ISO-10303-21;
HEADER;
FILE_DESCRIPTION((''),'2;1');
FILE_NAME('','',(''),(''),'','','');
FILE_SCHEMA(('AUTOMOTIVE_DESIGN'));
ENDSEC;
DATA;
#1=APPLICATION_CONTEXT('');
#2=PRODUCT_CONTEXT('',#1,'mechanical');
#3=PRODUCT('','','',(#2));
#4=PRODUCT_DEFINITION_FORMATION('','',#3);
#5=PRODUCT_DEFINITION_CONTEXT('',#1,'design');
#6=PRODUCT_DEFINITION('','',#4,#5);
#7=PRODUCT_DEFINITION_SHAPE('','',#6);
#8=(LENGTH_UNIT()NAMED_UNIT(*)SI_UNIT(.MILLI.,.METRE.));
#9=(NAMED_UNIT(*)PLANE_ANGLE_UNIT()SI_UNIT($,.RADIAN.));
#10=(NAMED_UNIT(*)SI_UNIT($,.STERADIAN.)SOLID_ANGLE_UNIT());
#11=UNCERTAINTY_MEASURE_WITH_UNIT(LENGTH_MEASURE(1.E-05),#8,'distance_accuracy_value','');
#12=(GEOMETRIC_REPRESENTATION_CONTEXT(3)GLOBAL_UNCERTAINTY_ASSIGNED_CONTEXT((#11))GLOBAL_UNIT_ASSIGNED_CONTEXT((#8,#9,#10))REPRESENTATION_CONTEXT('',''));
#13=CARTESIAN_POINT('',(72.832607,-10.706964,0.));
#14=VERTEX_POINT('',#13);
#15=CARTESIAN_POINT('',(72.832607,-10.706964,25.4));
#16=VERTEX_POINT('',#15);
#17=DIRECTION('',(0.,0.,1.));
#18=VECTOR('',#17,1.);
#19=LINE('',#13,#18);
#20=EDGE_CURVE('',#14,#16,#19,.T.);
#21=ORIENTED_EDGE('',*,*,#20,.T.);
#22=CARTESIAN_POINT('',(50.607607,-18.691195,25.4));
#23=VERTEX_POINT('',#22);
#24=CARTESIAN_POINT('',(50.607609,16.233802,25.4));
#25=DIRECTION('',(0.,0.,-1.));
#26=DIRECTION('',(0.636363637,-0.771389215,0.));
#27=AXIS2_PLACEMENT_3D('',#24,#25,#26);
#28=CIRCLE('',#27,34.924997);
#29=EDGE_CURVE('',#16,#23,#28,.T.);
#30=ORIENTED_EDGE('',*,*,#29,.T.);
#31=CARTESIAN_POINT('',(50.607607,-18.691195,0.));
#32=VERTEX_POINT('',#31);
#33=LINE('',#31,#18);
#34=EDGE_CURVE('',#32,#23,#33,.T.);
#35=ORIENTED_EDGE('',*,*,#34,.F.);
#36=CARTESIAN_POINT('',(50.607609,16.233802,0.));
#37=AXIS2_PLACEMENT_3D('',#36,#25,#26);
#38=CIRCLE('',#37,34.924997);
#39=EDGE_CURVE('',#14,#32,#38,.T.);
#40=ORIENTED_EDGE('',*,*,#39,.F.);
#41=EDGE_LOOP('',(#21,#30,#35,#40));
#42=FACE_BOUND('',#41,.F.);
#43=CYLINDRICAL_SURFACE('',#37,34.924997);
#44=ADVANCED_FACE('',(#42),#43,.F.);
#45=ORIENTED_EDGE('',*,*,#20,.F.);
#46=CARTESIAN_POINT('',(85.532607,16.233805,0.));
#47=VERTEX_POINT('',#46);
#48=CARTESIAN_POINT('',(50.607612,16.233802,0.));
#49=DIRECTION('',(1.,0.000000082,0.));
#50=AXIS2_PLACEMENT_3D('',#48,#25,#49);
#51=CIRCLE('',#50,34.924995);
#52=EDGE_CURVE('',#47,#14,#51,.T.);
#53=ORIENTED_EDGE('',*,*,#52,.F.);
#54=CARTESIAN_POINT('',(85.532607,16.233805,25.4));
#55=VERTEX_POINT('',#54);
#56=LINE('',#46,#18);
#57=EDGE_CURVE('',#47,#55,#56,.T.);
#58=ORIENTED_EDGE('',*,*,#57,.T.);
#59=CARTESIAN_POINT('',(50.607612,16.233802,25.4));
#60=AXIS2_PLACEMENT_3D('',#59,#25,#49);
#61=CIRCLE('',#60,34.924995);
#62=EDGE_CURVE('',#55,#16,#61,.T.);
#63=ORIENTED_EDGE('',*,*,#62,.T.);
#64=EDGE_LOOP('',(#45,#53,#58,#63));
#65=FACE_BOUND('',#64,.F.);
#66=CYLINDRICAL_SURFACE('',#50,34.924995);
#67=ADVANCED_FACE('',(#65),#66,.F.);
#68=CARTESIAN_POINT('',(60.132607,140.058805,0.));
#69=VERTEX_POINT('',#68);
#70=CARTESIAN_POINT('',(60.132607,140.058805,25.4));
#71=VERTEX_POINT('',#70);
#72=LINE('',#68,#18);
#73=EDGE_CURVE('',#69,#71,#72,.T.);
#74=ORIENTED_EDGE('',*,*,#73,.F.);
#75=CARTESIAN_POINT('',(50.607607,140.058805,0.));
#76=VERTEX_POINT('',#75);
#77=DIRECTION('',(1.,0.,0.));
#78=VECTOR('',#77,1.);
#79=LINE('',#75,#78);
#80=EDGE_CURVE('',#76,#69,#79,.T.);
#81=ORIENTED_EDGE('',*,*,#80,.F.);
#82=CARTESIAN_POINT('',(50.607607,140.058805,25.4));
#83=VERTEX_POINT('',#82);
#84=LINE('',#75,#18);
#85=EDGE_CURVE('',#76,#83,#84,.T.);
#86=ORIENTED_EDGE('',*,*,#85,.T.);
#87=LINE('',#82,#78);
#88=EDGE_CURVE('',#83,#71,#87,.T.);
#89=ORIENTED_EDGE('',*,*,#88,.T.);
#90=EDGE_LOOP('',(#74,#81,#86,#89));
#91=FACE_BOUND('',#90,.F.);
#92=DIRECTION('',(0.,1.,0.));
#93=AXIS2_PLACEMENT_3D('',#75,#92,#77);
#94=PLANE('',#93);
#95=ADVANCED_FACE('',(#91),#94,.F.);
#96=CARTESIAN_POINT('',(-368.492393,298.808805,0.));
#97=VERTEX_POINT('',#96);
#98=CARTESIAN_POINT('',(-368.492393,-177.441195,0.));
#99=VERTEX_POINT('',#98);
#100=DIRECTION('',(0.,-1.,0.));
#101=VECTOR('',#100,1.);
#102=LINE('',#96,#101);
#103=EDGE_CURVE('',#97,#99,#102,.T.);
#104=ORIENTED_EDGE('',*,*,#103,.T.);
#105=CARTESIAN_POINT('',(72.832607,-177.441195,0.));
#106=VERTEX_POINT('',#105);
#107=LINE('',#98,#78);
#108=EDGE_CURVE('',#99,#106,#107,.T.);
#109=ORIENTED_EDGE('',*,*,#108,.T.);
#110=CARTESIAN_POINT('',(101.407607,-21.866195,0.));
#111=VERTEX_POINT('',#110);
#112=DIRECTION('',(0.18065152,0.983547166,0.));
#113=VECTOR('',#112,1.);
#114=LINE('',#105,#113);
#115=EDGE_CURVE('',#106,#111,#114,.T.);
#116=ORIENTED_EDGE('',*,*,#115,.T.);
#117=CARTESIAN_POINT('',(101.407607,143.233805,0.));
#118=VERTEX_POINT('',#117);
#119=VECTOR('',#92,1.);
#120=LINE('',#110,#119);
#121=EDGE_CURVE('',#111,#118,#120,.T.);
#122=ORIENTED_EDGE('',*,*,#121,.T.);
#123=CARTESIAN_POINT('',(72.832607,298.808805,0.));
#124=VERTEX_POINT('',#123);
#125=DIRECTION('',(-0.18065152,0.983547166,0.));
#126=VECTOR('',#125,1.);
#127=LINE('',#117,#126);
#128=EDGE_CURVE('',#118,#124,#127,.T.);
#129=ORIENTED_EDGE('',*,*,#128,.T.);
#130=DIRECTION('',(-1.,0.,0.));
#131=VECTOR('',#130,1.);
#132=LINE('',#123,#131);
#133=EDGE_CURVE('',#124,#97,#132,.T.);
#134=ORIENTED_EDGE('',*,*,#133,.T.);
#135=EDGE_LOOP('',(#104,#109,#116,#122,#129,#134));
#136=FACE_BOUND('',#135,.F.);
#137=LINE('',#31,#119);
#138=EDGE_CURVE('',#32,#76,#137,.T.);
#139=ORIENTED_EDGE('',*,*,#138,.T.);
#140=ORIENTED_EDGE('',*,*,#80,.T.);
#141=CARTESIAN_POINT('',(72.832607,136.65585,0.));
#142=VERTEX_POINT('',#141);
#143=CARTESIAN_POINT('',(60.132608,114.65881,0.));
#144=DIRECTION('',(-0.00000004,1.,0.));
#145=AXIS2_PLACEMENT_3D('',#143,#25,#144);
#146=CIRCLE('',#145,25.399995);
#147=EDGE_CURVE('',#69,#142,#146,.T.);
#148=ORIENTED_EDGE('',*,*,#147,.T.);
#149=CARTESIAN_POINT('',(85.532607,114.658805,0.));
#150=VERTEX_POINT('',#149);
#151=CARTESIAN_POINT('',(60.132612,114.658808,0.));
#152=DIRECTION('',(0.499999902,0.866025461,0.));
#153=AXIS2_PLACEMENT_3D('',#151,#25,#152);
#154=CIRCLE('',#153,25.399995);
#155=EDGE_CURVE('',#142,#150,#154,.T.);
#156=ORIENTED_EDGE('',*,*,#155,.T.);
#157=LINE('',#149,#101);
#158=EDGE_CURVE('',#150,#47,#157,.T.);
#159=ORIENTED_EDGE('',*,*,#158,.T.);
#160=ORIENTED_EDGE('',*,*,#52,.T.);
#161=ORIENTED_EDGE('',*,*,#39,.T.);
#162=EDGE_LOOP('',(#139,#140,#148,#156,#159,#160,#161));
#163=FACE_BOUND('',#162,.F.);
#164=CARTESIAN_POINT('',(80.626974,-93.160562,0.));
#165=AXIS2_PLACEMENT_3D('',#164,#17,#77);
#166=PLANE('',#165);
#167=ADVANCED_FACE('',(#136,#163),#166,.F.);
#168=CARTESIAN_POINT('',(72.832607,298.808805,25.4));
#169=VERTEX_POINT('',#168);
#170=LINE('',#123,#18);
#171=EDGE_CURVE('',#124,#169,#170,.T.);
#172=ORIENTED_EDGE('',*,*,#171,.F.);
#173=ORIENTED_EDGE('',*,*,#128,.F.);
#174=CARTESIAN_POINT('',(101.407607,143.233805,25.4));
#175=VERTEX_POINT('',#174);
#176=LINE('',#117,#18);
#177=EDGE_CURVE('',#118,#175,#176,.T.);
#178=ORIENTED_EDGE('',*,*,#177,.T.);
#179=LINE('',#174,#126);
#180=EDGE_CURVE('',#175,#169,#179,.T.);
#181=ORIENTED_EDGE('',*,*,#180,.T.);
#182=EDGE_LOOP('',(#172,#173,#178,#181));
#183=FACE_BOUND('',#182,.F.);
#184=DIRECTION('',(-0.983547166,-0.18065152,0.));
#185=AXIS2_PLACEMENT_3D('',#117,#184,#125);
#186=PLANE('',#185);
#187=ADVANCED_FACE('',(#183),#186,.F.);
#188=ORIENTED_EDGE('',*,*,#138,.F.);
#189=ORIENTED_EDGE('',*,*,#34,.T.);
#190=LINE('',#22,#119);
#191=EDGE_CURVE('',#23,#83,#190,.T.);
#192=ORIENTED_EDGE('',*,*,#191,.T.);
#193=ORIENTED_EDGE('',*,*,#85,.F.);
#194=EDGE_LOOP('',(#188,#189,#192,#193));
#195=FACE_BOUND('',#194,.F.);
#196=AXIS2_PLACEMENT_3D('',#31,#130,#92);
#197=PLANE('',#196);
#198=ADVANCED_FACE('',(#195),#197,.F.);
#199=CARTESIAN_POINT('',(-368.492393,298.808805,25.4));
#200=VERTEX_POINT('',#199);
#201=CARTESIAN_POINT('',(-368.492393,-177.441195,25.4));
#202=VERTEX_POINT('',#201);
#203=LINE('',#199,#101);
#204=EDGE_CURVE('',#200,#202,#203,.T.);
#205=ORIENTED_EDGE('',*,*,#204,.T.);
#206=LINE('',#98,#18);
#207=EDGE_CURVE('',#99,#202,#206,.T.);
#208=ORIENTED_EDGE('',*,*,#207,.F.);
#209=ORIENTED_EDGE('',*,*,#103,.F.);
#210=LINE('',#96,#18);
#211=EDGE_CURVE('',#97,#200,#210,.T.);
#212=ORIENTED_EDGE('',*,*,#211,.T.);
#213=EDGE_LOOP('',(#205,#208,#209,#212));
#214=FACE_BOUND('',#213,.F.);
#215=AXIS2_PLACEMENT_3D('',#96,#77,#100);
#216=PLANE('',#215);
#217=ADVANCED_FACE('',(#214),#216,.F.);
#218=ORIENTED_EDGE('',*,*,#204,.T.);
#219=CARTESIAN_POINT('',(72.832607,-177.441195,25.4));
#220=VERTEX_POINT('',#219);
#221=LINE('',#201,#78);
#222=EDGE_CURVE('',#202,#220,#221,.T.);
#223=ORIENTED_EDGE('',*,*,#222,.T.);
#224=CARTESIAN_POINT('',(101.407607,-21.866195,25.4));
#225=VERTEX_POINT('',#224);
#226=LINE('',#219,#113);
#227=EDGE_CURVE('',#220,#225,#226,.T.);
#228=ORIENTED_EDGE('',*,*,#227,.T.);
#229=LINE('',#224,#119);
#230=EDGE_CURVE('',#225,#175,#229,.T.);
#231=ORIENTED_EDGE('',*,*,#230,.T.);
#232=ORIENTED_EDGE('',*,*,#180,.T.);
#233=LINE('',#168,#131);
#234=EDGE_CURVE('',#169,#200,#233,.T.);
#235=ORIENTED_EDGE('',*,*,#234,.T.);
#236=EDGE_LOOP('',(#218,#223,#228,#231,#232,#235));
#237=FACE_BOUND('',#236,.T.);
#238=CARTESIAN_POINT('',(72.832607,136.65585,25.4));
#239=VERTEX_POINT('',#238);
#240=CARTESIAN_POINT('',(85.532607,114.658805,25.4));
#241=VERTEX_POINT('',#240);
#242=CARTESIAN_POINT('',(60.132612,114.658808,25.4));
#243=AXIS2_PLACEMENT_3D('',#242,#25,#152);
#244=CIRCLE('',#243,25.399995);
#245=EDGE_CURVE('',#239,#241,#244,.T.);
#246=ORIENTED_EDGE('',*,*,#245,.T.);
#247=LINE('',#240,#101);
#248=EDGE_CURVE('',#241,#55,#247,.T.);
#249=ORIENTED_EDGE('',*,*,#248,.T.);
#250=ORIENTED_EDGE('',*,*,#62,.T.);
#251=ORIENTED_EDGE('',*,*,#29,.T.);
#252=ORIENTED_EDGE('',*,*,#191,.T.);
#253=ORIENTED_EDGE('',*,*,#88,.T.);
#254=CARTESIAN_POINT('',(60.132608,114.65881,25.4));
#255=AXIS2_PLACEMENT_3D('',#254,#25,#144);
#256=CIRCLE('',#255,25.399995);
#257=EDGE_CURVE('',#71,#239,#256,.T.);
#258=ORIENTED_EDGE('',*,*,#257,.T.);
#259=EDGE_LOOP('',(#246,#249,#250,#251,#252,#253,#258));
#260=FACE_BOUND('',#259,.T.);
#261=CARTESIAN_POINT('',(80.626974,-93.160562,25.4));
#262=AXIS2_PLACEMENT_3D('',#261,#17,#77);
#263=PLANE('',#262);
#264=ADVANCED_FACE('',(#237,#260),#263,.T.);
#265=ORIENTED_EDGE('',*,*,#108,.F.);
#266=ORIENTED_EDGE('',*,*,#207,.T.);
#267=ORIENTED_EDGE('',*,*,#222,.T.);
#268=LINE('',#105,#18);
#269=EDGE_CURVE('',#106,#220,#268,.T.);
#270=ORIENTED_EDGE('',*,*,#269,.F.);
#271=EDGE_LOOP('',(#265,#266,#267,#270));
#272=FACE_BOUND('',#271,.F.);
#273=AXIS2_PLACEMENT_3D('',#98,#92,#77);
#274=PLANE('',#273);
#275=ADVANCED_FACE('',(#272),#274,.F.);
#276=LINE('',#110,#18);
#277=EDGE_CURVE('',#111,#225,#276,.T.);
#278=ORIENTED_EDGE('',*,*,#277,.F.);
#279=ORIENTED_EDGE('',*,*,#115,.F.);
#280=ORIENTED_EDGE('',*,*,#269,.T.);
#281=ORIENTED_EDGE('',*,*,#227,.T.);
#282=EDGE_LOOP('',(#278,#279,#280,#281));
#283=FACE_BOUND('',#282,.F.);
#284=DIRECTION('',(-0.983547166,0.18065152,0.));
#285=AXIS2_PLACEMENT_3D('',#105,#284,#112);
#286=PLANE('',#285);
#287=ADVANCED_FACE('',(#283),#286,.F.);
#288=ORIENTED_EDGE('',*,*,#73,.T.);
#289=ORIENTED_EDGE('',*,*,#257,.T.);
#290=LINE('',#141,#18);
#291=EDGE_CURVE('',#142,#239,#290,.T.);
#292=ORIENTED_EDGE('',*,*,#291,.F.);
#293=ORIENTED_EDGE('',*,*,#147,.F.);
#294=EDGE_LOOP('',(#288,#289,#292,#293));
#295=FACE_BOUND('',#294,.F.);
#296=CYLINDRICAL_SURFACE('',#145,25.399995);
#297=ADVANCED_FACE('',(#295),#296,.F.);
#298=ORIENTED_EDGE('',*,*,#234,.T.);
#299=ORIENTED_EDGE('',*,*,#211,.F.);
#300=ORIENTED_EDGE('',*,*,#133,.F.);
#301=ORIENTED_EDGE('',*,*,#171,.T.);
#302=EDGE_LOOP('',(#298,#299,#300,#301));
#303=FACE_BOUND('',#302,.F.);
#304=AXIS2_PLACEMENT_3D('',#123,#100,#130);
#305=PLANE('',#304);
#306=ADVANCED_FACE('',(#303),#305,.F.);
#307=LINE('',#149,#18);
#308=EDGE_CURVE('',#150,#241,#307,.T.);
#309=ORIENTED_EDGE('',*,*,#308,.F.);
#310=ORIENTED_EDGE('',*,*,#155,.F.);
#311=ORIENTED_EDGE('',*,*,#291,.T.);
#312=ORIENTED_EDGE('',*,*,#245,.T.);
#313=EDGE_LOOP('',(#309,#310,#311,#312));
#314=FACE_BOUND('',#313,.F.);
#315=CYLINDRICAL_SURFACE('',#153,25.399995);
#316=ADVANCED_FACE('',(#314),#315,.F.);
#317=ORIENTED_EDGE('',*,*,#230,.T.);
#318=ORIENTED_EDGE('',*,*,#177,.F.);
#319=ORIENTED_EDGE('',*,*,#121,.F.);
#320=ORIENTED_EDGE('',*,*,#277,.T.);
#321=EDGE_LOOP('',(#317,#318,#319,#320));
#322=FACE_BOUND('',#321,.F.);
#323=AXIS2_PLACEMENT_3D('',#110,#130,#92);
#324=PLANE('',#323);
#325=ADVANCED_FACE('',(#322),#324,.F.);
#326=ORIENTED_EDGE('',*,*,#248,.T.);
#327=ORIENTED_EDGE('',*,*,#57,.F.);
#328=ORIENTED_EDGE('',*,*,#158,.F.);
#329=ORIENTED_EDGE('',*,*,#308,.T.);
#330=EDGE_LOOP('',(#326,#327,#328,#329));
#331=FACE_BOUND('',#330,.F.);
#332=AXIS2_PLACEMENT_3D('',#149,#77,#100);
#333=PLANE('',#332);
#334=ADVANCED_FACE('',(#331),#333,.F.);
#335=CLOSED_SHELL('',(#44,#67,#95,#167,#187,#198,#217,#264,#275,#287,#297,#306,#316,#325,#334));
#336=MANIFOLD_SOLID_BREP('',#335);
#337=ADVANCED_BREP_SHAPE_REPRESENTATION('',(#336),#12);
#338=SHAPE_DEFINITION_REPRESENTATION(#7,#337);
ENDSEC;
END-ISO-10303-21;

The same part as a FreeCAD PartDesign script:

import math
import FreeCAD as App
import Part
import Sketcher
Q = App.Units.Quantity


def add_polygon(sketch, points):
    """Adds a closed chain of lines whose ends are joined by coincident constraints."""
    first, n = sketch.GeometryCount, len(points)
    for a, b in zip(points, points[1:] + points[:1]):
        sketch.addGeometry(Part.LineSegment(App.Vector(*a, 0), App.Vector(*b, 0)), False)
    for i in range(n):
        sketch.addConstraint(Sketcher.Constraint("Coincident", first + i, 2, first + (i + 1) % n, 1))

doc = App.newDocument("Part")
params = doc.addObject("Spreadsheet::Sheet", "Params")
for row, (alias, value) in enumerate([
    ("sketch1_radius", "0.9999998 in"),
    ("sketch1_height", "6.5 in"),
    ("sketch1_radius2", "1.3749999 in"),
    ("sketch1_height2", "18.75 in"),
    ("sketch1_height3", "6.25 in"),
    ("pad1_length", "1 in"),
], start=1):
    params.set(f"A{row}", alias)
    params.set(f"B{row}", "=" + value)
    params.setAlias(f"B{row}", alias)

body = doc.addObject("PartDesign::Body", "Body")

# Sketch on XY plane
sketch1 = body.newObject("Sketcher::SketchObject", "Sketch")
sketch1.AttachmentSupport = (doc.getObject("XY_Plane"), [""])
sketch1.MapMode = "FlatFace"
add_polygon(sketch1, [(72.832607, -177.441195), (101.407607, -21.866195), (101.407607, 143.233805), (72.832607, 298.808805), (-368.492393, 298.808805), (-368.492393, -177.441195)])  # lines 0-5
sketch1.addGeometry(Part.ArcOfCircle(Part.Circle(App.Vector(50.607609, 16.233802, 0), App.Vector(0, 0, 1), 34.924997), math.radians(-90.000003), math.radians(-50.478804)), False)  # 6
sketch1.addGeometry(Part.LineSegment(App.Vector(50.607607, -18.691195, 0), App.Vector(50.607607, 140.058805, 0)), False)  # 7
sketch1.addGeometry(Part.LineSegment(App.Vector(50.607607, 140.058805, 0), App.Vector(60.132607, 140.058805, 0)), False)  # 8
sketch1.addGeometry(Part.ArcOfCircle(Part.Circle(App.Vector(60.132608, 114.65881, 0), App.Vector(0, 0, 1), 25.399995), math.radians(59.999996), math.radians(90.000002)), False)  # 9
sketch1.addGeometry(Part.ArcOfCircle(Part.Circle(App.Vector(60.132612, 114.658808, 0), App.Vector(0, 0, 1), 25.399995), math.radians(-0.000006), math.radians(60.000007)), False)  # 10
sketch1.addGeometry(Part.LineSegment(App.Vector(85.532607, 114.658805, 0), App.Vector(85.532607, 16.233805, 0)), False)  # 11
sketch1.addGeometry(Part.ArcOfCircle(Part.Circle(App.Vector(50.607612, 16.233802, 0), App.Vector(0, 0, 1), 34.924995), math.radians(-50.478807), math.radians(0.000005)), False)  # 12
sketch1.addConstraint(Sketcher.Constraint("Coincident", 6, 1, 7, 1))
sketch1.addConstraint(Sketcher.Constraint("Coincident", 7, 2, 8, 1))
sketch1.addConstraint(Sketcher.Constraint("Tangent", 8, 2, 9, 2))
sketch1.addConstraint(Sketcher.Constraint("Tangent", 9, 1, 10, 2))
sketch1.addConstraint(Sketcher.Constraint("Tangent", 10, 1, 11, 1))
sketch1.addConstraint(Sketcher.Constraint("Tangent", 11, 2, 12, 2))
sketch1.addConstraint(Sketcher.Constraint("Tangent", 12, 1, 6, 2))
sketch1.addConstraint(Sketcher.Constraint("Vertical", 1))
sketch1.addConstraint(Sketcher.Constraint("Horizontal", 3))
sketch1.addConstraint(Sketcher.Constraint("Vertical", 4))
sketch1.addConstraint(Sketcher.Constraint("Horizontal", 5))
sketch1.addConstraint(Sketcher.Constraint("Vertical", 7))
sketch1.addConstraint(Sketcher.Constraint("Horizontal", 8))
sketch1.addConstraint(Sketcher.Constraint("Vertical", 11))
sketch1.addConstraint(Sketcher.Constraint("Equal", 9, 10))
sketch1.addConstraint(Sketcher.Constraint("Equal", 6, 12))
sketch1.addConstraint(Sketcher.Constraint("Vertical", 2, 2, 5, 2))
sketch1.addConstraint(Sketcher.Constraint("Vertical", 5, 2, 9, 1))
sketch1.addConstraint(Sketcher.Constraint("Vertical", 9, 1, 12, 1))
sketch1.addConstraint(Sketcher.Constraint("Equal", 0, 2))
sketch1.addConstraint(Sketcher.Constraint("Radius", 10, Q("0.9999998 in")))
sketch1.addConstraint(Sketcher.Constraint("DistanceY", 1, 1, 1, 2, Q("6.5 in")))
sketch1.addConstraint(Sketcher.Constraint("Radius", 6, Q("1.3749999 in")))
sketch1.addConstraint(Sketcher.Constraint("DistanceX", 12, 3, 0, 2, Q("1.9999998 in")))
sketch1.addConstraint(Sketcher.Constraint("DistanceY", 12, 3, 1, 2, Q("5.0000001 in")))
sketch1.addConstraint(Sketcher.Constraint("DistanceX", 6, 1, 0, 2, Q("2 in")))
sketch1.addConstraint(Sketcher.Constraint("DistanceY", 4, 2, 4, 1, Q("18.75 in")))
sketch1.addConstraint(Sketcher.Constraint("DistanceY", 7, 1, 7, 2, Q("6.25 in")))
sketch1.addConstraint(Sketcher.Constraint("DistanceX", 9, 3, 2, 2, Q("0.5 in")))
sketch1.addConstraint(Sketcher.Constraint("DistanceX", 3, 2, 1, 2, Q("18.5 in")))
sketch1.addConstraint(Sketcher.Constraint("DistanceX", -1, 1, 6, 3, Q("50.607609 mm")))
sketch1.addConstraint(Sketcher.Constraint("DistanceY", -1, 1, 9, 3, Q("114.65881 mm")))
sketch1.setExpression("Constraints[26]", "Params.sketch1_radius")
sketch1.setExpression("Constraints[27]", "Params.sketch1_height")
sketch1.setExpression("Constraints[28]", "Params.sketch1_radius2")
sketch1.setExpression("Constraints[32]", "Params.sketch1_height2")
sketch1.setExpression("Constraints[33]", "Params.sketch1_height3")
pad1 = body.newObject("PartDesign::Pad", "Pad")
pad1.Profile = sketch1
pad1.setExpression("Length", "Params.pad1_length")

doc.recompute()
